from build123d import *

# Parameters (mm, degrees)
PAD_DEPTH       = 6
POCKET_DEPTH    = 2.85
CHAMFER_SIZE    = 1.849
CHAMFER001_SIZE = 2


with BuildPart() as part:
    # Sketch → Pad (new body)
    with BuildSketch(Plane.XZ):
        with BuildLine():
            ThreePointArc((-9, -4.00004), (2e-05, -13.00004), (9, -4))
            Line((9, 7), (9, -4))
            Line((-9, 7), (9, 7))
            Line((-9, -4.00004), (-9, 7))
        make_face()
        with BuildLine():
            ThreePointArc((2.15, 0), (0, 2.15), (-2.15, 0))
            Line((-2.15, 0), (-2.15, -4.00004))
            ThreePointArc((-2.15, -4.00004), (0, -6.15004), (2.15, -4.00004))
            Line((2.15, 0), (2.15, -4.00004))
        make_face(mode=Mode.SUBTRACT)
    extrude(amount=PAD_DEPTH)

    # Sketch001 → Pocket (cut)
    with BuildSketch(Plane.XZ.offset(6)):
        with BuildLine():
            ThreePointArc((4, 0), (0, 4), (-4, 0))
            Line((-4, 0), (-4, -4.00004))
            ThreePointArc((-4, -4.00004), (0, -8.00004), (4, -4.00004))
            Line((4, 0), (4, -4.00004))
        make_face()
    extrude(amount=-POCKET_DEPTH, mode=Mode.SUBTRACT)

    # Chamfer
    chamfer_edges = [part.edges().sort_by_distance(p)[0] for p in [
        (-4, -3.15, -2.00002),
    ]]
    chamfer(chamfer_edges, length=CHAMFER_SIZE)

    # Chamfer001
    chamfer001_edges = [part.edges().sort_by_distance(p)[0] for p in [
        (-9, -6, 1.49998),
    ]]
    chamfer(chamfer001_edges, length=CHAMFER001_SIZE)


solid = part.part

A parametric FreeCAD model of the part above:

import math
import FreeCAD as App
import Part
import Sketcher
from FreeCAD import Vector
Q = App.Units.Quantity


def edges_at(feature, points):
    """Names of the edges that pass closest to the given points."""
    edges = feature.Shape.Edges
    near = lambda p: min(range(len(edges)), key=lambda i: edges[i].distToShape(Part.Vertex(*p))[0])
    return sorted({f"Edge{near(p) + 1}" for p in points})

doc = App.newDocument("Part")
params = doc.addObject("Spreadsheet::Sheet", "Params")
for row, (alias, value) in enumerate([
    ("sketch1_radius", "9 mm"),
    ("sketch1_height", "11 mm"),
    ("sketch1_radius2", "2.15 mm"),
    ("pad1_length", "6 mm"),
    ("sketch2_radius", "4 mm"),
    ("pocket1_length", "2.85 mm"),
    ("chamfer_size", "1.849 mm"),
    ("chamfer2_size", "2 mm"),
], start=1):
    params.set(f"A{row}", alias)
    params.set(f"B{row}", "=" + value)
    params.setAlias(f"B{row}", alias)

body = doc.addObject("PartDesign::Body", "Body")

sketch1 = body.newObject("Sketcher::SketchObject", "Sketch")
sketch1.AttachmentSupport = (doc.getObject("XZ_Plane"), [""])
sketch1.MapMode = "FlatFace"
sketch1.addGeometry([
    Part.ArcOfCircle(Part.Circle(Vector(0, -4, 0), Vector(0, 0, 1), 9), math.radians(180), math.radians(360)),
    Part.LineSegment(Vector(9, -4, 0), Vector(9, 7, 0)),
    Part.LineSegment(Vector(9, 7, 0), Vector(-9, 7, 0)),
    Part.LineSegment(Vector(-9, 7, 0), Vector(-9, -4, 0)),
    Part.ArcOfCircle(Part.Circle(Vector(0, 0, 0), Vector(0, 0, 1), 2.1), math.radians(0), math.radians(180)),
    Part.LineSegment(Vector(2.1, 0, 0), Vector(2.1, -4, 0)),
    Part.ArcOfCircle(Part.Circle(Vector(0, -4, 0), Vector(0, 0, 1), 2.1), math.radians(180), math.radians(360)),
    Part.LineSegment(Vector(-2.1, -4, 0), Vector(-2.1, 0, 0)),
], False)
sketch1.addConstraint([
    Sketcher.Constraint("Coincident", 0, 2, 1, 1),
    Sketcher.Constraint("Coincident", 1, 2, 2, 1),
    Sketcher.Constraint("Coincident", 2, 2, 3, 1),
    Sketcher.Constraint("Tangent", 3, 2, 0, 1),
    Sketcher.Constraint("Tangent", 4, 1, 5, 1),
    Sketcher.Constraint("Tangent", 5, 2, 6, 2),
    Sketcher.Constraint("Tangent", 6, 1, 7, 1),
    Sketcher.Constraint("Tangent", 7, 2, 4, 2),
    Sketcher.Constraint("Vertical", 1),
    Sketcher.Constraint("Horizontal", 2),
    Sketcher.Constraint("Vertical", 3),
    Sketcher.Constraint("Vertical", 5),
    Sketcher.Constraint("Vertical", 7),
    Sketcher.Constraint("Coincident", 4, 3, -1, 1),
    Sketcher.Constraint("Coincident", 6, 3, 0, 3),
    Sketcher.Constraint("Radius", 0, Q("9 mm")),
    Sketcher.Constraint("DistanceY", 1, 1, 1, 2, Q("11 mm")),
    Sketcher.Constraint("Radius", 4, Q("2.15 mm")),
    Sketcher.Constraint("DistanceY", 0, 2, -1, 1, Q("4 mm")),
    Sketcher.Constraint("DistanceY", 3, 2, 3, 1, Q("11.00004 mm")),
])
sketch1.setExpression("Constraints[15]", "Params.sketch1_radius")
sketch1.setExpression("Constraints[16]", "Params.sketch1_height")
sketch1.setExpression("Constraints[17]", "Params.sketch1_radius2")
pad1 = body.newObject("PartDesign::Pad", "Pad")
pad1.Profile = sketch1
pad1.setExpression("Length", "Params.pad1_length")

sketch2 = body.newObject("Sketcher::SketchObject", "Sketch001")
sketch2.AttachmentSupport = (doc.getObject("XZ_Plane"), [""])
sketch2.MapMode = "FlatFace"
sketch2.AttachmentOffset = App.Placement(Vector(0, 0, 6), App.Rotation())
sketch2.addGeometry([
    Part.ArcOfCircle(Part.Circle(Vector(0, 0, 0), Vector(0, 0, 1), 4), math.radians(0), math.radians(180)),
    Part.LineSegment(Vector(-4, 0, 0), Vector(-4, -4, 0)),
    Part.ArcOfCircle(Part.Circle(Vector(0, -4, 0), Vector(0, 0, 1), 4), math.radians(180), math.radians(360)),
    Part.LineSegment(Vector(4, -4, 0), Vector(4, 0, 0)),
], False)
sketch2.addConstraint([
    Sketcher.Constraint("Tangent", 0, 2, 1, 1),
    Sketcher.Constraint("Tangent", 1, 2, 2, 1),
    Sketcher.Constraint("Tangent", 2, 2, 3, 1),
    Sketcher.Constraint("Tangent", 3, 2, 0, 1),
    Sketcher.Constraint("Vertical", 1),
    Sketcher.Constraint("Vertical", 3),
    Sketcher.Constraint("Coincident", 0, 3, -1, 1),
    Sketcher.Constraint("Radius", 0, Q("4 mm")),
    Sketcher.Constraint("DistanceY", 1, 2, 1, 1, Q("4.00004 mm")),
])
sketch2.setExpression("Constraints[7]", "Params.sketch2_radius")
pocket1 = body.newObject("PartDesign::Pocket", "Pocket")
pocket1.Profile = sketch2
pocket1.setExpression("Length", "Params.pocket1_length")
doc.recompute()

chamfer = body.newObject("PartDesign::Chamfer", "Chamfer")
chamfer.Base = (pocket1, edges_at(pocket1, [(-4, -3.15, -2)]))
chamfer.setExpression("Size", "Params.chamfer_size")
doc.recompute()

chamfer2 = body.newObject("PartDesign::Chamfer", "Chamfer001")
chamfer2.Base = (chamfer, edges_at(chamfer, [(-9, -6, 1.5)]))
chamfer2.setExpression("Size", "Params.chamfer2_size")

doc.recompute()
